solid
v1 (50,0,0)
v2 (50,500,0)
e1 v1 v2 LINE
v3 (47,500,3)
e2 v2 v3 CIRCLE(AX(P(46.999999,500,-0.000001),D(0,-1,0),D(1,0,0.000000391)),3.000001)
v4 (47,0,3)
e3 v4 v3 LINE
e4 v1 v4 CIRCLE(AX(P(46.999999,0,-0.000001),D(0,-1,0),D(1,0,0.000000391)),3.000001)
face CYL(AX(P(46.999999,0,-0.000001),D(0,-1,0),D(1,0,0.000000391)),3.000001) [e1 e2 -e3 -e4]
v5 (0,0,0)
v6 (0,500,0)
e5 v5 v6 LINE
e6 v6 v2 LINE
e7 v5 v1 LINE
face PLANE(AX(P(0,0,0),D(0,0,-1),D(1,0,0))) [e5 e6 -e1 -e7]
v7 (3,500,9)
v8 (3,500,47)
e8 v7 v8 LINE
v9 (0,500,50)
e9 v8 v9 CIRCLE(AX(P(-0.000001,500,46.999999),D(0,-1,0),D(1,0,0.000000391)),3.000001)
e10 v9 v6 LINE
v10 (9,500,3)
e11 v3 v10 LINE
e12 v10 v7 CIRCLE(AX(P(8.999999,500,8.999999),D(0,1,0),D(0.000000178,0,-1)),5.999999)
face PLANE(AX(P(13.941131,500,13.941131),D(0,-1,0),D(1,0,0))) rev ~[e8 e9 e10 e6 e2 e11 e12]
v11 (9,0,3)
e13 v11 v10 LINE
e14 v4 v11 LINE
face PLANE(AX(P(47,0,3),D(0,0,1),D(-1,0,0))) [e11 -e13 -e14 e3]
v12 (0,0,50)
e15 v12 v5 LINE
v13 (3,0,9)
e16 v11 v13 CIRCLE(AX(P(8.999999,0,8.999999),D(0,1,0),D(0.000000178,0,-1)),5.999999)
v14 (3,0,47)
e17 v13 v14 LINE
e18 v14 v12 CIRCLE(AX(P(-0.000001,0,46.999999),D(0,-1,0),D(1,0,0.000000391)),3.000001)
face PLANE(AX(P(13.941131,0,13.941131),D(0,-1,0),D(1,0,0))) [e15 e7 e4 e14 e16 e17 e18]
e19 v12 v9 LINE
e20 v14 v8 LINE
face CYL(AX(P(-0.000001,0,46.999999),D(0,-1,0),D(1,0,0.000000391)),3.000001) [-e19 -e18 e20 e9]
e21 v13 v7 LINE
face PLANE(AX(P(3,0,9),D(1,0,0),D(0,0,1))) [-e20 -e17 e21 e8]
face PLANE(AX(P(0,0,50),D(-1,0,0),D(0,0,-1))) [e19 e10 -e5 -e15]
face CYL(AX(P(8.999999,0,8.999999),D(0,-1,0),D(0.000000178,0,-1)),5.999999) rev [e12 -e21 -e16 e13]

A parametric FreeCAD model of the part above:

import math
import FreeCAD as App
import Part
import Sketcher

doc = App.newDocument("Part")
params = doc.addObject("Spreadsheet::Sheet", "Params")
for row, (alias, value) in enumerate([
    ("sketch1_radius", "3.000001 mm"),
    ("sketch1_radius2", "5.999999 mm"),
    ("sketch1_width", "50 mm"),
    ("pad1_length", "500 mm"),
], start=1):
    params.set(f"A{row}", alias)
    params.set(f"B{row}", "=" + value)
    params.setAlias(f"B{row}", alias)

body = doc.addObject("PartDesign::Body", "Body")

# Sketch on XZ plane
sketch1 = body.newObject("Sketcher::SketchObject", "Sketch")
sketch1.AttachmentSupport = (doc.getObject("XZ_Plane"), [""])
sketch1.MapMode = "FlatFace"
sketch1.addGeometry([
    Part.LineSegment(App.Vector(0, 50, 0), App.Vector(0, 0, 0)),  # 0
    Part.LineSegment(App.Vector(0, 0, 0), App.Vector(50, 0, 0)),  # 1
    Part.ArcOfCircle(Part.Circle(App.Vector(46.999999, -0.000001, 0), App.Vector(0, 0, 1), 3.000001), math.radians(0.000022), math.radians(89.999978)),  # 2
    Part.LineSegment(App.Vector(47, 3, 0), App.Vector(9, 3, 0)),  # 3
    Part.ArcOfCircle(Part.Circle(App.Vector(8.999999, 8.999999, 0), App.Vector(0, 0, 1), 5.999999), math.radians(179.99999), math.radians(270.00001)),  # 4
    Part.LineSegment(App.Vector(3, 9, 0), App.Vector(3, 47, 0)),  # 5
    Part.ArcOfCircle(Part.Circle(App.Vector(-0.000001, 46.999999, 0), App.Vector(0, 0, 1), 3.000001), math.radians(0.000022), math.radians(89.999978)),  # 6
], False)
sketch1.addConstraint([
    Sketcher.Constraint("Coincident", 0, 2, 1, 1),
    Sketcher.Constraint("Coincident", 1, 2, 2, 1),
    Sketcher.Constraint("Tangent", 2, 2, 3, 1),
    Sketcher.Constraint("Tangent", 3, 2, 4, 2),
    Sketcher.Constraint("Tangent", 4, 1, 5, 1),
    Sketcher.Constraint("Tangent", 5, 2, 6, 1),
    Sketcher.Constraint("Coincident", 6, 2, 0, 1),
    Sketcher.Constraint("Vertical", 0),
    Sketcher.Constraint("Horizontal", 1),
    Sketcher.Constraint("Horizontal", 3),
    Sketcher.Constraint("Vertical", 5),
    Sketcher.Constraint("Coincident", 0, 2, -1, 1),
    Sketcher.Constraint("Equal", 2, 6),
    Sketcher.Constraint("PointOnObject", 2, 3, -1),
    Sketcher.Constraint("PointOnObject", 6, 3, -2),
    Sketcher.Constraint("Equal", 1, 0),
    Sketcher.Constraint("Radius", 2, 3.000001),
    Sketcher.Constraint("Radius", 4, 5.999999),
    Sketcher.Constraint("DistanceX", 1, 1, 1, 2, 50.0),
])
sketch1.setExpression("Constraints[16]", "Params.sketch1_radius")
sketch1.setExpression("Constraints[17]", "Params.sketch1_radius2")
sketch1.setExpression("Constraints[18]", "Params.sketch1_width")
pad1 = body.newObject("PartDesign::Pad", "Pad")
pad1.Profile = sketch1
pad1.setExpression("Length", "Params.pad1_length")
pad1.Reversed = True

doc.recompute()
